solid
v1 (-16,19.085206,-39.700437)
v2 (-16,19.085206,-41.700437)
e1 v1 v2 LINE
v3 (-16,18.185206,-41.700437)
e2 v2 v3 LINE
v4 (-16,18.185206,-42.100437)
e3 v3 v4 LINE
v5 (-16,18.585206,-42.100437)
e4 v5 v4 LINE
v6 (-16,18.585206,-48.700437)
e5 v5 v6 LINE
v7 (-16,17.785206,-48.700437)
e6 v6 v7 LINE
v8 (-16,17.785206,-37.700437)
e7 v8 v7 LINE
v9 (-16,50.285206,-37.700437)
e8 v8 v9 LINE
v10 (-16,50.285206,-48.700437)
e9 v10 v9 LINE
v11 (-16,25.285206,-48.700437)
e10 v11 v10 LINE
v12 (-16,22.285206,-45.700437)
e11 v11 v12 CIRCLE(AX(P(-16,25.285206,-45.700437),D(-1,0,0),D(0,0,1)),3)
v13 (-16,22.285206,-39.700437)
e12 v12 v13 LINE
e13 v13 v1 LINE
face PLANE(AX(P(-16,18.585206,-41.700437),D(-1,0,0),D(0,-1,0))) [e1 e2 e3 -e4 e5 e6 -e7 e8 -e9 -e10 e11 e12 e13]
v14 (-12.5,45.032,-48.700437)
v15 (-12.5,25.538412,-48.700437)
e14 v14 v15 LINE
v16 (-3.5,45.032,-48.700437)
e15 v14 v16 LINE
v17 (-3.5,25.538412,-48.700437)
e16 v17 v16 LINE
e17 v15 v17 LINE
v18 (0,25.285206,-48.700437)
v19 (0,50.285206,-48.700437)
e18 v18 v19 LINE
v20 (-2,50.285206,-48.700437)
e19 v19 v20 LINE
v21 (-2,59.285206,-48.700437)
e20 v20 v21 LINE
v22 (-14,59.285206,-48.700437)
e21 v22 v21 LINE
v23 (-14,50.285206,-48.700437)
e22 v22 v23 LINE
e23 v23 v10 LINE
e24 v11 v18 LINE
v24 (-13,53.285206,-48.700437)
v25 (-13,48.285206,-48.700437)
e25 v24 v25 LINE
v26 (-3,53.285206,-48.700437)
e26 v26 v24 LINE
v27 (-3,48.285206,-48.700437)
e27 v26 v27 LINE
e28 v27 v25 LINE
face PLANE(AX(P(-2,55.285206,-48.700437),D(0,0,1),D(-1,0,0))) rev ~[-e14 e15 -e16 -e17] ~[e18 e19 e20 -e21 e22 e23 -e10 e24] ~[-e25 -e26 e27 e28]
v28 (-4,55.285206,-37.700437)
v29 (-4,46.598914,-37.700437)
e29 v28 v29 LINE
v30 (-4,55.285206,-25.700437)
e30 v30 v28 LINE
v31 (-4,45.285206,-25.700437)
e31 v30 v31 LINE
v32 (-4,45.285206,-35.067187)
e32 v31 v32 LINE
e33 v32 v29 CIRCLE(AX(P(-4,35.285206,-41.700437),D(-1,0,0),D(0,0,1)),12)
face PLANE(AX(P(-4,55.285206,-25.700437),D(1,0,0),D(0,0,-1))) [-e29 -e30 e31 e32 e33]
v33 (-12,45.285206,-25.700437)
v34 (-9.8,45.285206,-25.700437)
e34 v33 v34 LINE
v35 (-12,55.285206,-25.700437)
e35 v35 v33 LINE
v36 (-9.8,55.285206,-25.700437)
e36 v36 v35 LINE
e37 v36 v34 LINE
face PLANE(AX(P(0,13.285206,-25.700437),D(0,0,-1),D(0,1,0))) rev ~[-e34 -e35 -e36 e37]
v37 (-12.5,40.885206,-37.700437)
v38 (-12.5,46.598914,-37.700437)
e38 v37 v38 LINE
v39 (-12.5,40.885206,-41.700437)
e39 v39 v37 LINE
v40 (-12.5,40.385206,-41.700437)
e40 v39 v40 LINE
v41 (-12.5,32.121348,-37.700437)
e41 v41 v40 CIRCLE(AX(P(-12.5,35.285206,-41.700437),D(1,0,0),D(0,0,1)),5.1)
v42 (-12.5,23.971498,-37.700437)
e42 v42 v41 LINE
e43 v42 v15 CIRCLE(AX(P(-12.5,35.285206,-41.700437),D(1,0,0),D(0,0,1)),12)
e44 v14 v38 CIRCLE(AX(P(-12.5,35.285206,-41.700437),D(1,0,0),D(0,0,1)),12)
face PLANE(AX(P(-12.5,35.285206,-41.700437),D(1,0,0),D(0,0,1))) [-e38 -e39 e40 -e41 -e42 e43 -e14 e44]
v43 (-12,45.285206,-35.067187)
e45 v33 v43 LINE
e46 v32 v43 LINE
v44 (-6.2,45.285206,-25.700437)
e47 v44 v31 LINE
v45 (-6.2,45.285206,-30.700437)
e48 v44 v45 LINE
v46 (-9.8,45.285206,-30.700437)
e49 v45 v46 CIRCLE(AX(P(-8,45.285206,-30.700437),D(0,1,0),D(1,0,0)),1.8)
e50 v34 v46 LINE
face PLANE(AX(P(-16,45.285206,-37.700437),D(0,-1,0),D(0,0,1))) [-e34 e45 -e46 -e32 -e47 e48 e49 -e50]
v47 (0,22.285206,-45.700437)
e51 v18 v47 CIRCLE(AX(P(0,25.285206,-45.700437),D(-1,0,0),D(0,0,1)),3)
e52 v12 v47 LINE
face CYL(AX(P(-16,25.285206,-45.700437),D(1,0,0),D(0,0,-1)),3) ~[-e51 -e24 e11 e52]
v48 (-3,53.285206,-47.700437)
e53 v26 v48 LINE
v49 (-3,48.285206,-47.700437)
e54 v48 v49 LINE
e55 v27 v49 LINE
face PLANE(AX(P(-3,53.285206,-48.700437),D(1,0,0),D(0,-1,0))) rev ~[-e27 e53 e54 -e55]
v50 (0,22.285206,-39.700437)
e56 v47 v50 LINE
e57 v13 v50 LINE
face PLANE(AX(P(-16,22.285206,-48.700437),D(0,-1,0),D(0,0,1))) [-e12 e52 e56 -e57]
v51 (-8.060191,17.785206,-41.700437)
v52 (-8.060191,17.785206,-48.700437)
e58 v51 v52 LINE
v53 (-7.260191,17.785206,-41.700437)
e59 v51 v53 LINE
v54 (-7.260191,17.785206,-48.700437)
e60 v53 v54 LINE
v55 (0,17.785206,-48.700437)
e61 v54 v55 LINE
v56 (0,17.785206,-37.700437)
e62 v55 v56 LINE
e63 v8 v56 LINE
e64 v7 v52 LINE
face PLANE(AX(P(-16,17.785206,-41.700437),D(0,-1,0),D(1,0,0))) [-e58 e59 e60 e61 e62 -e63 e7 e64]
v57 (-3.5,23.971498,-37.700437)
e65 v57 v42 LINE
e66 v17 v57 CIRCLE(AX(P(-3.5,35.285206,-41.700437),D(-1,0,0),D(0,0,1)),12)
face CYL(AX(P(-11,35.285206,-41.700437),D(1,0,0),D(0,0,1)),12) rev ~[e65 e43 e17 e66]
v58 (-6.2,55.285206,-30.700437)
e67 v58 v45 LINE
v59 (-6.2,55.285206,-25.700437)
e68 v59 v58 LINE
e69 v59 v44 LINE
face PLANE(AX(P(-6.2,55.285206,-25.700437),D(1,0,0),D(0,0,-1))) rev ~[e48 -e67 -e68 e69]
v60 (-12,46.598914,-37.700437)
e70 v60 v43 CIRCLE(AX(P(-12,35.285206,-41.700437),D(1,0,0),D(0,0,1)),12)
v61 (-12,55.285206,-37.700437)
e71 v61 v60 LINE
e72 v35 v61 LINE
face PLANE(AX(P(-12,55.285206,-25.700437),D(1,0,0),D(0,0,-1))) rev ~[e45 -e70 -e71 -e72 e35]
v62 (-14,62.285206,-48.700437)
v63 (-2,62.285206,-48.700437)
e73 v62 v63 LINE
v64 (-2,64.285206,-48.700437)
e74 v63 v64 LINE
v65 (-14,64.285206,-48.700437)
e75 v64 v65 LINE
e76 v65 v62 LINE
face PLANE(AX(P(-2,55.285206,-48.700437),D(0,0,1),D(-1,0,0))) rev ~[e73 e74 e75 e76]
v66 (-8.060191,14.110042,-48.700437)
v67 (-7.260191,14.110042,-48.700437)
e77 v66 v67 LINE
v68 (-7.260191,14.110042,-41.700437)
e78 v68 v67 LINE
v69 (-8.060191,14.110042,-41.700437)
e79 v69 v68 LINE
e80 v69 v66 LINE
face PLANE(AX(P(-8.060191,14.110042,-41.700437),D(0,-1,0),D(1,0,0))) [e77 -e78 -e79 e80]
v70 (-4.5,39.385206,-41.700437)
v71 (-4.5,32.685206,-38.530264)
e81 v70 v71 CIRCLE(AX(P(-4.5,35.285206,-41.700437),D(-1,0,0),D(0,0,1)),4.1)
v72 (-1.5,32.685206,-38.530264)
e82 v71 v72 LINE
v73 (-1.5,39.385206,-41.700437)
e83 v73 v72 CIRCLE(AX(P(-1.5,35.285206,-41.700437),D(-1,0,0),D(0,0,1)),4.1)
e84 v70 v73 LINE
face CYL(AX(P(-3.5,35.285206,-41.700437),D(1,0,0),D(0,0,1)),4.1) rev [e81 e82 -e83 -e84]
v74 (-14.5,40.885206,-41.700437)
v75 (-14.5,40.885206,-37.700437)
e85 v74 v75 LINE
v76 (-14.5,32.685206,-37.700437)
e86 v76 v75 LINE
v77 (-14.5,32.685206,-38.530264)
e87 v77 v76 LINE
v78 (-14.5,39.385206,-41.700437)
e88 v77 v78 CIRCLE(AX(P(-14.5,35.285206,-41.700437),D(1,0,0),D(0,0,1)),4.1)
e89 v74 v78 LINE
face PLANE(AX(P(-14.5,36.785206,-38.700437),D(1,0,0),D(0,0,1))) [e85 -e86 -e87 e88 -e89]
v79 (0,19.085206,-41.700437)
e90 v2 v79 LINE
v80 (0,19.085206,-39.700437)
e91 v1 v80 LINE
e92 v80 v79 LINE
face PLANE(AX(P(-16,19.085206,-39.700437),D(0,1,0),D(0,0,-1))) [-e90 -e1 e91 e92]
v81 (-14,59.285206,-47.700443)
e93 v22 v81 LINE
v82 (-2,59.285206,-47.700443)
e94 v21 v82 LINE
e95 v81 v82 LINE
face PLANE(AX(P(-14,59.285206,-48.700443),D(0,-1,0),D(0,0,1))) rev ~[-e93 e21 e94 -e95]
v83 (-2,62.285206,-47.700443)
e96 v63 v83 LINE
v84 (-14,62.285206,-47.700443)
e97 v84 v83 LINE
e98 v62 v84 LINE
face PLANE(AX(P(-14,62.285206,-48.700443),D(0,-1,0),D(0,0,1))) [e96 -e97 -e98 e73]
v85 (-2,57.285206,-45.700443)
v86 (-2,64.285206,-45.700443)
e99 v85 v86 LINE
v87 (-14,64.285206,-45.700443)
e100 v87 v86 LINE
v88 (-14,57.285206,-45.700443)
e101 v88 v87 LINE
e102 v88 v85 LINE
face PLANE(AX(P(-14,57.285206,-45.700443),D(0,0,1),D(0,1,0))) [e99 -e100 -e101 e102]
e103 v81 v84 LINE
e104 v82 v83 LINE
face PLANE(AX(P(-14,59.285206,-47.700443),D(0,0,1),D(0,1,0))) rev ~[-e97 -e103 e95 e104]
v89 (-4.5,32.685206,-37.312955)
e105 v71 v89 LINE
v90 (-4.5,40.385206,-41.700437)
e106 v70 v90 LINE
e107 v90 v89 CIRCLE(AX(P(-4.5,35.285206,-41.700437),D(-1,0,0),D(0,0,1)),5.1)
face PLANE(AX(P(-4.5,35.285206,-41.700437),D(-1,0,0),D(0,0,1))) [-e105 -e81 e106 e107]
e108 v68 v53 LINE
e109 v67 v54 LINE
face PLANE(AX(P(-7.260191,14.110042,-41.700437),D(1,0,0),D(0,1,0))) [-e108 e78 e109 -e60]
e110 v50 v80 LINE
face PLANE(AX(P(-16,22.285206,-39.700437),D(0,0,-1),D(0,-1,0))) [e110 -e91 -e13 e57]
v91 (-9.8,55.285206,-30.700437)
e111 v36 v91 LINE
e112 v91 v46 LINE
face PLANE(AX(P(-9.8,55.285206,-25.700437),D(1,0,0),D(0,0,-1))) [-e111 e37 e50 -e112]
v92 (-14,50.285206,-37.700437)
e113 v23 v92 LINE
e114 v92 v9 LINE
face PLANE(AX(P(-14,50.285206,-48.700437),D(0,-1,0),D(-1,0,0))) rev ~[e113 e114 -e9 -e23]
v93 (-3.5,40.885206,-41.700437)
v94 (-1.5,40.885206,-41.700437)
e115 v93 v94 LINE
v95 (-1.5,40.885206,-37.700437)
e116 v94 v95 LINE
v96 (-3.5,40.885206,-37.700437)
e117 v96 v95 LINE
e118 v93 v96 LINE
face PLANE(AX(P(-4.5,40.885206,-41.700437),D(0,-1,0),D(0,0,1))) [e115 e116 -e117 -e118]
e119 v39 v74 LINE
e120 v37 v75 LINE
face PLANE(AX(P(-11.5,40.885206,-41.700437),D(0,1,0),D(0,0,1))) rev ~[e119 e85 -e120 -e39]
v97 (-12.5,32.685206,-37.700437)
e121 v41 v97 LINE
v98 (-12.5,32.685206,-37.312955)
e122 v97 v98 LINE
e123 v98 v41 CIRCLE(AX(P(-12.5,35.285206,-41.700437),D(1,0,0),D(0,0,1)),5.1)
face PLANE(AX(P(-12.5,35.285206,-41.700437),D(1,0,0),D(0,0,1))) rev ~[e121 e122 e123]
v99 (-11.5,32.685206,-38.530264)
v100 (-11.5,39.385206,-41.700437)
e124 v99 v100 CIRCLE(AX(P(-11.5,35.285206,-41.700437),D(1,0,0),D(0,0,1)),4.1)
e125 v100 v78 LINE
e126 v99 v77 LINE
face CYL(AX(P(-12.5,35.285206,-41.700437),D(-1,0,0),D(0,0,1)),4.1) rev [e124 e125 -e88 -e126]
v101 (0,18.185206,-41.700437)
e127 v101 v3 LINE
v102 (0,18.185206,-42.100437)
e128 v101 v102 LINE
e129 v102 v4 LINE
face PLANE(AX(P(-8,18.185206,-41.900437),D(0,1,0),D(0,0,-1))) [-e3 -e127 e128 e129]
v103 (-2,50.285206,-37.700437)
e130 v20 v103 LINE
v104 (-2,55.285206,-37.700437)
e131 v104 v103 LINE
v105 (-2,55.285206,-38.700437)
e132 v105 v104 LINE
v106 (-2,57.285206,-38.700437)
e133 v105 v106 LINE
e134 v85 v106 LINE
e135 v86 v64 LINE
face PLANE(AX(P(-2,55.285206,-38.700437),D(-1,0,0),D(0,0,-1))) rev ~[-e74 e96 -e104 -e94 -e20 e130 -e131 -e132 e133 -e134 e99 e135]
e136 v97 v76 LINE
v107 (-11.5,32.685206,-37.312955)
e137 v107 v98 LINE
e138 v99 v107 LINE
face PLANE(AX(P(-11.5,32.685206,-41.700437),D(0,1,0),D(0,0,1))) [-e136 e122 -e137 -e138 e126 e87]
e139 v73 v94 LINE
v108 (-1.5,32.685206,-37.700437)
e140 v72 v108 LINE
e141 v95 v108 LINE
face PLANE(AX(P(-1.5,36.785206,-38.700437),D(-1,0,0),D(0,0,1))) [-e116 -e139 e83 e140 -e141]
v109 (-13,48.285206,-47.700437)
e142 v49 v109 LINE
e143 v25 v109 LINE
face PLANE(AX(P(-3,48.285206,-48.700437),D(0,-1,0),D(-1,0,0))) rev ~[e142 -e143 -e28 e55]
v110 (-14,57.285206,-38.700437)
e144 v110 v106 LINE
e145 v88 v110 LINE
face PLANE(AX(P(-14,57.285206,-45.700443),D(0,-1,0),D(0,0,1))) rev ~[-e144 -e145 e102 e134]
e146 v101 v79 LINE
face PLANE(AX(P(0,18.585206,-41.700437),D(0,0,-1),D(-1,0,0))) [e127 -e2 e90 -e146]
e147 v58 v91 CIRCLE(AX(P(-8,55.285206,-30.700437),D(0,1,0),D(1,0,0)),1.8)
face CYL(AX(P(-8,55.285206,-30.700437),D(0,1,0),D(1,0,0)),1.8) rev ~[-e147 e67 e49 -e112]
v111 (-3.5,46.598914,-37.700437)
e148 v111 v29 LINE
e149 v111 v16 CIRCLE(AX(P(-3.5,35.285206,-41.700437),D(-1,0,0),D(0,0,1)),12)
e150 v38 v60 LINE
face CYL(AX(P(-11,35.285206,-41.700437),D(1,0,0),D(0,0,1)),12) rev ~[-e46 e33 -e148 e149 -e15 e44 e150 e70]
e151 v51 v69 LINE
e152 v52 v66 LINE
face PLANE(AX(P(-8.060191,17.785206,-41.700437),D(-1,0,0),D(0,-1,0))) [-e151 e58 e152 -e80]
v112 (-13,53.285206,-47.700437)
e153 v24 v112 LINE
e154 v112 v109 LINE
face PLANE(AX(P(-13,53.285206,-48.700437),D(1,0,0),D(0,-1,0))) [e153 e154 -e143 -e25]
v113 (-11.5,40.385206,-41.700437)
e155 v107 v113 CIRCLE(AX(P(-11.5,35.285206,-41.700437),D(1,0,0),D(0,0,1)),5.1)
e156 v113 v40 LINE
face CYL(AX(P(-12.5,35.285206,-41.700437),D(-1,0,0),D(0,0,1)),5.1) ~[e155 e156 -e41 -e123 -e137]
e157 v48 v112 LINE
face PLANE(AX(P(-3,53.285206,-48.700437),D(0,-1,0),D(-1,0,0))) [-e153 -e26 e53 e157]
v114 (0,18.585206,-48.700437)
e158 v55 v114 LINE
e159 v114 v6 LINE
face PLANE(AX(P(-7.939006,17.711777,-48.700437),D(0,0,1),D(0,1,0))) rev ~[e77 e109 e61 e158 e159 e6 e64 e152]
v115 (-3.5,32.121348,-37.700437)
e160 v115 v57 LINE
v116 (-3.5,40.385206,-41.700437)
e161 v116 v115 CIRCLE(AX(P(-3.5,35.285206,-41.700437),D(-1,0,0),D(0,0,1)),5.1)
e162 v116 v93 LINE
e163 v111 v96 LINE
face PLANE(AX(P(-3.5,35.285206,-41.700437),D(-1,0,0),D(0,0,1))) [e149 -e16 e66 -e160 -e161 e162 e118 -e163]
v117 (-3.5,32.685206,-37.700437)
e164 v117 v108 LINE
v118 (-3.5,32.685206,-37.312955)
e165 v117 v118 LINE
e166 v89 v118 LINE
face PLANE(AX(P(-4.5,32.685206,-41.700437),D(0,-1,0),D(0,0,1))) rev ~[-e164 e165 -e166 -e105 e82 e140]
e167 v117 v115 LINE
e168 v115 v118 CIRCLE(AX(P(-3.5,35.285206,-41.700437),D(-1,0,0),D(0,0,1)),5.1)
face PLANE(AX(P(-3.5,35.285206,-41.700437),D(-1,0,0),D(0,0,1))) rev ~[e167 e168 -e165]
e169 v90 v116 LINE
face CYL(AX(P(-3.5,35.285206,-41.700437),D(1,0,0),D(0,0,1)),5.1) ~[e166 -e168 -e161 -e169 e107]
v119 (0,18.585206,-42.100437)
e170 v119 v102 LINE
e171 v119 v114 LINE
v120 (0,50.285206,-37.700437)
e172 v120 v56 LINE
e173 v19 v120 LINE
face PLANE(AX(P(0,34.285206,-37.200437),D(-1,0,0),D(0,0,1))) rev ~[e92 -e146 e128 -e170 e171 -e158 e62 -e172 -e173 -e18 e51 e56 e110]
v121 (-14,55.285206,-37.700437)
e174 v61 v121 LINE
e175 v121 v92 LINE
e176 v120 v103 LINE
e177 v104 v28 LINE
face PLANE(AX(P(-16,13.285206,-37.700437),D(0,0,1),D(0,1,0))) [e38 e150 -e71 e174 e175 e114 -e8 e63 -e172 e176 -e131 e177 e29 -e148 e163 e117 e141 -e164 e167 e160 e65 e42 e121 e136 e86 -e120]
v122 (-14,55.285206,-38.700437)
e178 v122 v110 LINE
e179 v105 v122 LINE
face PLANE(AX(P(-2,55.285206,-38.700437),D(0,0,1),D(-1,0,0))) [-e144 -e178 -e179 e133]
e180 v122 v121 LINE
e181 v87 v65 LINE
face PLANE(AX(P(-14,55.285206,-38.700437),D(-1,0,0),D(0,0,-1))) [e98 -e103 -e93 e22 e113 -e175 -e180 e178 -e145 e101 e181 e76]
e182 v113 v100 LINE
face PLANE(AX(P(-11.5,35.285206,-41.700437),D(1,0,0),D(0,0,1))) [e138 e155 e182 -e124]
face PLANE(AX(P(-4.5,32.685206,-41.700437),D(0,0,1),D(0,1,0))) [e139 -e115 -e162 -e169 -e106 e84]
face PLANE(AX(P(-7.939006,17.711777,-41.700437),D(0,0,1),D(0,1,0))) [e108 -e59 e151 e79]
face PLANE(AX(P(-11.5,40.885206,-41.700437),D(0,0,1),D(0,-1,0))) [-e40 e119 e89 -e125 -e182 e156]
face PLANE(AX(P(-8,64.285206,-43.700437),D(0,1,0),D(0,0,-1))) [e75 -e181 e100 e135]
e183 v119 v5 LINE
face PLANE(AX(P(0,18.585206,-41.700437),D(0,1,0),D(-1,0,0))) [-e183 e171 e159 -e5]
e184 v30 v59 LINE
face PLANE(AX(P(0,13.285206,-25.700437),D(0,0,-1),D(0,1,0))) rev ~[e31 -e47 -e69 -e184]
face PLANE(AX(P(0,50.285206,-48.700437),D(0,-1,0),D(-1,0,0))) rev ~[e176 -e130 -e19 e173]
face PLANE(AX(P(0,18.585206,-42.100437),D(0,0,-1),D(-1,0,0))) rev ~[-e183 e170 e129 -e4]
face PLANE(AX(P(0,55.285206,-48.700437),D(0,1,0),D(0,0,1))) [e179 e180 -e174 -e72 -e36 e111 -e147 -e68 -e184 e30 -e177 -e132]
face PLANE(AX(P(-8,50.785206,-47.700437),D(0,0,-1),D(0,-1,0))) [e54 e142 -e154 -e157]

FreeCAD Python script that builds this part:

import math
import FreeCAD as App
import Part
import Sketcher
from FreeCAD import Vector


def edges_at(feature, points):
    """Names of the edges that pass closest to the given points."""
    edges = feature.Shape.Edges
    near = lambda p: min(range(len(edges)), key=lambda i: edges[i].distToShape(Part.Vertex(*p))[0])
    return sorted({f"Edge{near(p) + 1}" for p in points})


def add_polygon(sketch, points):
    """Adds a closed chain of lines whose ends are joined by coincident constraints."""
    first, n = sketch.GeometryCount, len(points)
    for a, b in zip(points, points[1:] + points[:1]):
        sketch.addGeometry(Part.LineSegment(App.Vector(*a, 0), App.Vector(*b, 0)), False)
    for i in range(n):
        sketch.addConstraint(Sketcher.Constraint("Coincident", first + i, 2, first + (i + 1) % n, 1))

doc = App.newDocument("Part")
body = doc.addObject("PartDesign::Body", "Body")

# Sketch on YZ plane
sketch1 = body.newObject("Sketcher::SketchObject", "Sketch")
sketch1.AttachmentSupport = (doc.getObject("YZ_Plane"), [""])
sketch1.MapMode = "FlatFace"
add_polygon(sketch1, [(55.285206, -48.700437), (13.285206, -48.700437), (13.285206, -25.700437), (55.285206, -25.700437)])  # lines 0-3
sketch1.addConstraint(Sketcher.Constraint("Horizontal", 0))
sketch1.addConstraint(Sketcher.Constraint("Vertical", 1))
sketch1.addConstraint(Sketcher.Constraint("Horizontal", 2))
sketch1.addConstraint(Sketcher.Constraint("Vertical", 3))
sketch1.addConstraint(Sketcher.Constraint("DistanceX", 0, 2, 0, 1, 42.0))
sketch1.addConstraint(Sketcher.Constraint("DistanceY", 1, 1, 1, 2, 23.0))
sketch1.addConstraint(Sketcher.Constraint("DistanceX", -1, 1, 0, 2, 13.285206))
sketch1.addConstraint(Sketcher.Constraint("DistanceY", 0, 2, -1, 1, 48.700437))
pad1 = body.newObject("PartDesign::Pad", "Pad")
pad1.Profile = sketch1
pad1.Length = 16
pad1.Reversed = True

# Sketch on YZ plane
sketch2 = body.newObject("Sketcher::SketchObject", "Sketch001")
sketch2.AttachmentSupport = (doc.getObject("YZ_Plane"), [""])
sketch2.MapMode = "FlatFace"
sketch2.AttachmentOffset = App.Placement(Vector(0, 0, -16), App.Rotation())
add_polygon(sketch2, [(45.285206, -37.700437), (13.285206, -37.700437), (13.285206, -25.700437), (45.285206, -25.700437)])  # lines 0-3
sketch2.addConstraint(Sketcher.Constraint("Horizontal", 0))
sketch2.addConstraint(Sketcher.Constraint("Vertical", 1))
sketch2.addConstraint(Sketcher.Constraint("Horizontal", 2))
sketch2.addConstraint(Sketcher.Constraint("Vertical", 3))
sketch2.addConstraint(Sketcher.Constraint("DistanceX", 0, 2, 0, 1, 32.0))
sketch2.addConstraint(Sketcher.Constraint("DistanceY", 1, 1, 1, 2, 12.0))
sketch2.addConstraint(Sketcher.Constraint("DistanceX", -1, 1, 0, 2, 13.285206))
sketch2.addConstraint(Sketcher.Constraint("DistanceY", 0, 2, -1, 1, 37.700437))
pocket1 = body.newObject("PartDesign::Pocket", "Pocket")
pocket1.Profile = sketch2
pocket1.Length = 16
pocket1.Reversed = True

# Sketch on XZ plane
sketch3 = body.newObject("Sketcher::SketchObject", "Sketch002")
sketch3.AttachmentSupport = (doc.getObject("XZ_Plane"), [""])
sketch3.MapMode = "FlatFace"
sketch3.AttachmentOffset = App.Placement(Vector(0, 0, -55.285206), App.Rotation())
add_polygon(sketch3, [(-4, -25.700437), (0, -25.700437), (0, -37.700437), (-4, -37.700437)])  # lines 0-3
add_polygon(sketch3, [(-16, -25.700437), (-12, -25.700437), (-12, -37.700437), (-16, -37.700437)])  # lines 4-7
sketch3.addGeometry(Part.ArcOfCircle(Part.Circle(Vector(-8, -30.700437, 0), Vector(0, 0, 1), 1.8), math.radians(180), math.radians(360)), False)  # 8
sketch3.addGeometry(Part.LineSegment(Vector(-9.8, -30.700437, 0), Vector(-9.8, -25.700437, 0)), False)  # 9
sketch3.addGeometry(Part.LineSegment(Vector(-9.8, -25.700437, 0), Vector(-6.2, -25.700437, 0)), False)  # 10
sketch3.addGeometry(Part.LineSegment(Vector(-6.2, -25.700437, 0), Vector(-6.2, -30.700437, 0)), False)  # 11
sketch3.addConstraint(Sketcher.Constraint("Tangent", 8, 1, 9, 1))
sketch3.addConstraint(Sketcher.Constraint("Coincident", 9, 2, 10, 1))
sketch3.addConstraint(Sketcher.Constraint("Coincident", 10, 2, 11, 1))
sketch3.addConstraint(Sketcher.Constraint("Tangent", 11, 2, 8, 2))
sketch3.addConstraint(Sketcher.Constraint("Horizontal", 0))
sketch3.addConstraint(Sketcher.Constraint("Vertical", 1))
sketch3.addConstraint(Sketcher.Constraint("Horizontal", 2))
sketch3.addConstraint(Sketcher.Constraint("Vertical", 3))
sketch3.addConstraint(Sketcher.Constraint("Horizontal", 4))
sketch3.addConstraint(Sketcher.Constraint("Vertical", 5))
sketch3.addConstraint(Sketcher.Constraint("Horizontal", 6))
sketch3.addConstraint(Sketcher.Constraint("Vertical", 7))
sketch3.addConstraint(Sketcher.Constraint("Vertical", 9))
sketch3.addConstraint(Sketcher.Constraint("Horizontal", 10))
sketch3.addConstraint(Sketcher.Constraint("Vertical", 11))
sketch3.addConstraint(Sketcher.Constraint("PointOnObject", 0, 2, -2))
sketch3.addConstraint(Sketcher.Constraint("Horizontal", 3, 2, 4, 2))
sketch3.addConstraint(Sketcher.Constraint("Horizontal", 2, 2, 5, 2))
sketch3.addConstraint(Sketcher.Constraint("Horizontal", 7, 2, 9, 2))
sketch3.addConstraint(Sketcher.Constraint("Equal", 2, 4))
sketch3.addConstraint(Sketcher.Constraint("Radius", 8, 1.8))
sketch3.addConstraint(Sketcher.Constraint("DistanceX", 0, 1, 0, 2, 4.0))
sketch3.addConstraint(Sketcher.Constraint("DistanceY", 1, 2, 1, 1, 12.0))
sketch3.addConstraint(Sketcher.Constraint("DistanceY", 9, 1, 9, 2, 5.0))
sketch3.addConstraint(Sketcher.Constraint("DistanceX", 8, 3, -1, 1, 8.0))
sketch3.addConstraint(Sketcher.Constraint("DistanceX", 4, 2, -1, 1, 12.0))
sketch3.addConstraint(Sketcher.Constraint("DistanceY", 8, 3, -1, 1, 30.700437))
pocket2 = body.newObject("PartDesign::Pocket", "Pocket001")
pocket2.Profile = sketch3
pocket2.Length = 10
pocket2.Reversed = True

# Sketch on XY plane
sketch4 = body.newObject("Sketcher::SketchObject", "Sketch003")
sketch4.AttachmentSupport = (doc.getObject("XY_Plane"), [""])
sketch4.MapMode = "FlatFace"
sketch4.AttachmentOffset = App.Placement(Vector(0, 0, -48.700437), App.Rotation())
add_polygon(sketch4, [(-11, 38.285206), (-5, 38.285206), (-5, 32.285206), (-11, 32.285206)])  # lines 0-3
sketch4.addConstraint(Sketcher.Constraint("Horizontal", 0))
sketch4.addConstraint(Sketcher.Constraint("Vertical", 1))
sketch4.addConstraint(Sketcher.Constraint("Horizontal", 2))
sketch4.addConstraint(Sketcher.Constraint("Vertical", 3))
sketch4.addConstraint(Sketcher.Constraint("Equal", 2, 1))
sketch4.addConstraint(Sketcher.Constraint("DistanceX", 0, 1, 0, 2, 6.0))
sketch4.addConstraint(Sketcher.Constraint("DistanceX", 0, 2, -1, 1, 5.0))
sketch4.addConstraint(Sketcher.Constraint("DistanceY", -1, 1, 0, 2, 38.285206))
pocket3 = body.newObject("PartDesign::Pocket", "Pocket002")
pocket3.Profile = sketch4
pocket3.Length = 11
pocket3.Reversed = True

# Sketch on YZ plane
sketch5 = body.newObject("Sketcher::SketchObject", "Sketch004")
sketch5.AttachmentSupport = (doc.getObject("YZ_Plane"), [""])
sketch5.MapMode = "FlatFace"
sketch5.AttachmentOffset = App.Placement(Vector(0, 0, -5), App.Rotation())
sketch5.addGeometry(Part.Circle(Vector(35.285206, -41.700437, 0), Vector(0, 0, 1), 12), False)
sketch5.addConstraint(Sketcher.Constraint("Diameter", 0, 24.0))
sketch5.addConstraint(Sketcher.Constraint("DistanceX", -1, 1, 0, 3, 35.285206))
sketch5.addConstraint(Sketcher.Constraint("DistanceY", 0, 3, -1, 1, 41.700437))
pocket4 = body.newObject("PartDesign::Pocket", "Pocket003")
pocket4.Profile = sketch5
pocket4.Length = 1.5
pocket4.Reversed = True

# Sketch on YZ plane
sketch6 = body.newObject("Sketcher::SketchObject", "Sketch005")
sketch6.AttachmentSupport = (doc.getObject("YZ_Plane"), [""])
sketch6.MapMode = "FlatFace"
sketch6.AttachmentOffset = App.Placement(Vector(0, 0, -11), App.Rotation())
sketch6.addGeometry(Part.Circle(Vector(35.285206, -41.700437, 0), Vector(0, 0, 1), 12), False)
sketch6.addConstraint(Sketcher.Constraint("Diameter", 0, 24.0))
sketch6.addConstraint(Sketcher.Constraint("DistanceX", -1, 1, 0, 3, 35.285206))
sketch6.addConstraint(Sketcher.Constraint("DistanceY", 0, 3, -1, 1, 41.700437))
pocket5 = body.newObject("PartDesign::Pocket", "Pocket004")
pocket5.Profile = sketch6
pocket5.Length = 1.5

# Sketch on YZ plane
sketch7 = body.newObject("Sketcher::SketchObject", "Sketch006")
sketch7.AttachmentSupport = (doc.getObject("YZ_Plane"), [""])
sketch7.MapMode = "FlatFace"
sketch7.AttachmentOffset = App.Placement(Vector(0, 0, -3.5), App.Rotation())
sketch7.addGeometry(Part.Circle(Vector(35.285206, -41.700437, 0), Vector(0, 0, 1), 4.1), False)
sketch7.addConstraint(Sketcher.Constraint("Diameter", 0, 8.2))
sketch7.addConstraint(Sketcher.Constraint("DistanceX", -1, 1, 0, 3, 35.285206))
sketch7.addConstraint(Sketcher.Constraint("DistanceY", 0, 3, -1, 1, 41.700437))
pocket6 = body.newObject("PartDesign::Pocket", "Pocket005")
pocket6.Profile = sketch7
pocket6.Length = 2
pocket6.Reversed = True

# Sketch on YZ plane
sketch8 = body.newObject("Sketcher::SketchObject", "Sketch007")
sketch8.AttachmentSupport = (doc.getObject("YZ_Plane"), [""])
sketch8.MapMode = "FlatFace"
sketch8.AttachmentOffset = App.Placement(Vector(0, 0, -12.5), App.Rotation())
sketch8.addGeometry(Part.Circle(Vector(35.285206, -41.700437, 0), Vector(0, 0, 1), 4.1), False)
sketch8.addConstraint(Sketcher.Constraint("Diameter", 0, 8.2))
sketch8.addConstraint(Sketcher.Constraint("DistanceX", -1, 1, 0, 3, 35.285206))
sketch8.addConstraint(Sketcher.Constraint("DistanceY", 0, 3, -1, 1, 41.700437))
pocket7 = body.newObject("PartDesign::Pocket", "Pocket006")
pocket7.Profile = sketch8
pocket7.Length = 2

# Sketch on YZ plane
sketch9 = body.newObject("Sketcher::SketchObject", "Sketch008")
sketch9.AttachmentSupport = (doc.getObject("YZ_Plane"), [""])
sketch9.MapMode = "FlatFace"
sketch9.AttachmentOffset = App.Placement(Vector(0, 0, -3.5), App.Rotation())
sketch9.addGeometry(Part.Circle(Vector(35.285206, -41.700437, 0), Vector(0, 0, 1), 5.1), False)
sketch9.addGeometry(Part.Circle(Vector(35.285206, -41.700437, 0), Vector(0, 0, 1), 4.1), False)
sketch9.addConstraint(Sketcher.Constraint("Coincident", 1, 3, 0, 3))
sketch9.addConstraint(Sketcher.Constraint("Diameter", 0, 10.2))
sketch9.addConstraint(Sketcher.Constraint("Diameter", 1, 8.2))
sketch9.addConstraint(Sketcher.Constraint("DistanceX", -1, 1, 0, 3, 35.285206))
sketch9.addConstraint(Sketcher.Constraint("DistanceY", 0, 3, -1, 1, 41.700437))
pad2 = body.newObject("PartDesign::Pad", "Pad001")
pad2.Profile = sketch9
pad2.Length = 1
pad2.Reversed = True

# Sketch on YZ plane
sketch10 = body.newObject("Sketcher::SketchObject", "Sketch009")
sketch10.AttachmentSupport = (doc.getObject("YZ_Plane"), [""])
sketch10.MapMode = "FlatFace"
sketch10.AttachmentOffset = App.Placement(Vector(0, 0, -12.5), App.Rotation())
sketch10.addGeometry(Part.Circle(Vector(35.285206, -41.700437, 0), Vector(0, 0, 1), 5.1), False)
sketch10.addGeometry(Part.Circle(Vector(35.285206, -41.700437, 0), Vector(0, 0, 1), 4.1), False)
sketch10.addConstraint(Sketcher.Constraint("Coincident", 1, 3, 0, 3))
sketch10.addConstraint(Sketcher.Constraint("Diameter", 0, 10.2))
sketch10.addConstraint(Sketcher.Constraint("Diameter", 1, 8.2))
sketch10.addConstraint(Sketcher.Constraint("DistanceX", -1, 1, 0, 3, 35.285206))
sketch10.addConstraint(Sketcher.Constraint("DistanceY", 0, 3, -1, 1, 41.700437))
pad3 = body.newObject("PartDesign::Pad", "Pad002")
pad3.Profile = sketch10
pad3.Length = 1

# Sketch on YZ plane
sketch11 = body.newObject("Sketcher::SketchObject", "Sketch010")
sketch11.AttachmentSupport = (doc.getObject("YZ_Plane"), [""])
sketch11.MapMode = "FlatFace"
sketch11.AttachmentOffset = App.Placement(Vector(0, 0, -4.5), App.Rotation())
add_polygon(sketch11, [(40.885206, -41.700437), (32.685206, -41.700437), (32.685206, -35.700437), (40.885206, -35.700437)])  # lines 0-3
sketch11.addConstraint(Sketcher.Constraint("Horizontal", 0))
sketch11.addConstraint(Sketcher.Constraint("Vertical", 1))
sketch11.addConstraint(Sketcher.Constraint("Horizontal", 2))
sketch11.addConstraint(Sketcher.Constraint("Vertical", 3))
sketch11.addConstraint(Sketcher.Constraint("DistanceY", 1, 1, 1, 2, 6.0))
sketch11.addConstraint(Sketcher.Constraint("DistanceX", 0, 2, 0, 1, 8.2))
sketch11.addConstraint(Sketcher.Constraint("DistanceX", -1, 1, 0, 2, 32.685206))
sketch11.addConstraint(Sketcher.Constraint("DistanceY", 0, 2, -1, 1, 41.700437))
pocket8 = body.newObject("PartDesign::Pocket", "Pocket007")
pocket8.Profile = sketch11
pocket8.Length = 3
pocket8.Reversed = True

# Sketch on YZ plane
sketch12 = body.newObject("Sketcher::SketchObject", "Sketch011")
sketch12.AttachmentSupport = (doc.getObject("YZ_Plane"), [""])
sketch12.MapMode = "FlatFace"
sketch12.AttachmentOffset = App.Placement(Vector(0, 0, -11.5), App.Rotation())
add_polygon(sketch12, [(32.685206, -41.700437), (40.885206, -41.700437), (40.885206, -35.700437), (32.685206, -35.700437)])  # lines 0-3
sketch12.addConstraint(Sketcher.Constraint("Horizontal", 0))
sketch12.addConstraint(Sketcher.Constraint("Vertical", 1))
sketch12.addConstraint(Sketcher.Constraint("Horizontal", 2))
sketch12.addConstraint(Sketcher.Constraint("Vertical", 3))
sketch12.addConstraint(Sketcher.Constraint("DistanceY", 1, 1, 1, 2, 6.0))
sketch12.addConstraint(Sketcher.Constraint("DistanceX", 0, 1, 0, 2, 8.2))
sketch12.addConstraint(Sketcher.Constraint("DistanceX", -1, 1, 0, 2, 40.885206))
sketch12.addConstraint(Sketcher.Constraint("DistanceY", 0, 2, -1, 1, 41.700437))
pocket9 = body.newObject("PartDesign::Pocket", "Pocket008")
pocket9.Profile = sketch12
pocket9.Length = 3

# Sketch on YZ plane
sketch13 = body.newObject("Sketcher::SketchObject", "Sketch012")
sketch13.AttachmentSupport = (doc.getObject("YZ_Plane"), [""])
sketch13.MapMode = "FlatFace"
sketch13.AttachmentOffset = App.Placement(Vector(0, 0, -11), App.Rotation())
sketch13.addGeometry(Part.Circle(Vector(35.285206, -41.700437, 0), Vector(0, 0, 1), 12), False)
sketch13.addConstraint(Sketcher.Constraint("Diameter", 0, 24.0))
sketch13.addConstraint(Sketcher.Constraint("DistanceX", -1, 1, 0, 3, 35.285206))
sketch13.addConstraint(Sketcher.Constraint("DistanceY", 0, 3, -1, 1, 41.700437))
pocket10 = body.newObject("PartDesign::Pocket", "Pocket009")
pocket10.Profile = sketch13
pocket10.Length = 6
pocket10.Reversed = True

# Sketch on XY plane
sketch14 = body.newObject("Sketcher::SketchObject", "Sketch013")
sketch14.AttachmentSupport = (doc.getObject("XY_Plane"), [""])
sketch14.MapMode = "FlatFace"
sketch14.AttachmentOffset = App.Placement(Vector(0, 0, -48.700437), App.Rotation())
add_polygon(sketch14, [(-13, 53.285206), (-3, 53.285206), (-3, 48.285206), (-13, 48.285206)])  # lines 0-3
sketch14.addConstraint(Sketcher.Constraint("Horizontal", 0))
sketch14.addConstraint(Sketcher.Constraint("Vertical", 1))
sketch14.addConstraint(Sketcher.Constraint("Horizontal", 2))
sketch14.addConstraint(Sketcher.Constraint("Vertical", 3))
sketch14.addConstraint(Sketcher.Constraint("DistanceX", 0, 1, 0, 2, 10.0))
sketch14.addConstraint(Sketcher.Constraint("DistanceY", 1, 2, 1, 1, 5.0))
sketch14.addConstraint(Sketcher.Constraint("DistanceX", 0, 2, -1, 1, 3.0))
sketch14.addConstraint(Sketcher.Constraint("DistanceY", -1, 1, 0, 2, 53.285206))
pocket11 = body.newObject("PartDesign::Pocket", "Pocket010")
pocket11.Profile = sketch14
pocket11.Length = 1
pocket11.Reversed = True

# Sketch on YZ plane
sketch15 = body.newObject("Sketcher::SketchObject", "Sketch014")
sketch15.AttachmentSupport = (doc.getObject("YZ_Plane"), [""])
sketch15.MapMode = "FlatFace"
sketch15.AttachmentOffset = App.Placement(Vector(0, 0, -16), App.Rotation())
add_polygon(sketch15, [(13.285206, -48.700437), (13.285206, -37.700437), (17.785206, -37.700437), (17.785206, -41.700437), (19.085206, -41.700437), (19.085206, -39.700437), (22.285206, -39.700437), (22.285206, -48.700437)])  # lines 0-7
sketch15.addConstraint(Sketcher.Constraint("Vertical", 0))
sketch15.addConstraint(Sketcher.Constraint("Horizontal", 1))
sketch15.addConstraint(Sketcher.Constraint("Vertical", 2))
sketch15.addConstraint(Sketcher.Constraint("Horizontal", 3))
sketch15.addConstraint(Sketcher.Constraint("Vertical", 4))
sketch15.addConstraint(Sketcher.Constraint("Horizontal", 5))
sketch15.addConstraint(Sketcher.Constraint("Vertical", 6))
sketch15.addConstraint(Sketcher.Constraint("Horizontal", 7))
sketch15.addConstraint(Sketcher.Constraint("Equal", 7, 6))
sketch15.addConstraint(Sketcher.Constraint("DistanceX", 7, 2, 7, 1, 9.0))
sketch15.addConstraint(Sketcher.Constraint("DistanceY", 0, 1, 0, 2, 11.0))
sketch15.addConstraint(Sketcher.Constraint("DistanceY", 2, 2, 2, 1, 4.0))
sketch15.addConstraint(Sketcher.Constraint("DistanceX", 1, 1, 1, 2, 4.5))
sketch15.addConstraint(Sketcher.Constraint("DistanceX", 3, 1, 3, 2, 1.3))
sketch15.addConstraint(Sketcher.Constraint("DistanceX", -1, 1, 0, 2, 13.285206))
sketch15.addConstraint(Sketcher.Constraint("DistanceY", 0, 2, -1, 1, 37.700437))
pocket12 = body.newObject("PartDesign::Pocket", "Pocket011")
pocket12.Profile = sketch15
pocket12.Length = 16
pocket12.Reversed = True

# Sketch on XY plane
sketch16 = body.newObject("Sketcher::SketchObject", "Sketch015")
sketch16.AttachmentSupport = (doc.getObject("XY_Plane"), [""])
sketch16.MapMode = "FlatFace"
sketch16.AttachmentOffset = App.Placement(Vector(0, 0, -48.700437), App.Rotation())
add_polygon(sketch16, [(-2, 55.285206), (0, 55.285206), (0, 50.285206), (-2, 50.285206)])  # lines 0-3
add_polygon(sketch16, [(-16, 55.285206), (-14, 55.285206), (-14, 50.285206), (-16, 50.285206)])  # lines 4-7
sketch16.addConstraint(Sketcher.Constraint("Horizontal", 0))
sketch16.addConstraint(Sketcher.Constraint("Vertical", 1))
sketch16.addConstraint(Sketcher.Constraint("Horizontal", 2))
sketch16.addConstraint(Sketcher.Constraint("Vertical", 3))
sketch16.addConstraint(Sketcher.Constraint("Horizontal", 4))
sketch16.addConstraint(Sketcher.Constraint("Vertical", 5))
sketch16.addConstraint(Sketcher.Constraint("Horizontal", 6))
sketch16.addConstraint(Sketcher.Constraint("Vertical", 7))
sketch16.addConstraint(Sketcher.Constraint("PointOnObject", 0, 2, -2))
sketch16.addConstraint(Sketcher.Constraint("Horizontal", 3, 2, 4, 2))
sketch16.addConstraint(Sketcher.Constraint("Horizontal", 2, 2, 5, 2))
sketch16.addConstraint(Sketcher.Constraint("Equal", 2, 4))
sketch16.addConstraint(Sketcher.Constraint("DistanceX", 0, 1, 0, 2, 2.0))
sketch16.addConstraint(Sketcher.Constraint("DistanceY", 1, 2, 1, 1, 5.0))
sketch16.addConstraint(Sketcher.Constraint("DistanceX", 4, 2, -1, 1, 14.0))
sketch16.addConstraint(Sketcher.Constraint("DistanceY", -1, 1, 0, 2, 55.285206))
pocket13 = body.newObject("PartDesign::Pocket", "Pocket012")
pocket13.Profile = sketch16
pocket13.Length = 11
pocket13.Reversed = True
doc.recompute()

fillet = body.newObject("PartDesign::Fillet", "Fillet")
fillet.Base = (pocket13, edges_at(pocket13, [(-8, 22.285, -48.7)]))
fillet.Radius = 3

# Sketch on XY plane
sketch17 = body.newObject("Sketcher::SketchObject", "Sketch016")
sketch17.AttachmentSupport = (doc.getObject("XY_Plane"), [""])
sketch17.MapMode = "FlatFace"
sketch17.AttachmentOffset = App.Placement(Vector(0, 0, -41.700437), App.Rotation())
add_polygon(sketch17, [(-8.060191, 17.785206), (-16, 17.785206), (-16, 18.585206), (0, 18.585206), (0, 17.785206), (-7.260191, 17.785206), (-7.260191, 14.110042), (-8.060191, 14.110042)])  # lines 0-7
sketch17.addConstraint(Sketcher.Constraint("Horizontal", 0))
sketch17.addConstraint(Sketcher.Constraint("Vertical", 1))
sketch17.addConstraint(Sketcher.Constraint("Horizontal", 2))
sketch17.addConstraint(Sketcher.Constraint("Vertical", 3))
sketch17.addConstraint(Sketcher.Constraint("Horizontal", 4))
sketch17.addConstraint(Sketcher.Constraint("Vertical", 5))
sketch17.addConstraint(Sketcher.Constraint("Horizontal", 6))
sketch17.addConstraint(Sketcher.Constraint("Vertical", 7))
sketch17.addConstraint(Sketcher.Constraint("PointOnObject", 2, 2, -2))
sketch17.addConstraint(Sketcher.Constraint("Horizontal", 0, 2, 3, 2))
sketch17.addConstraint(Sketcher.Constraint("Equal", 6, 1))
sketch17.addConstraint(Sketcher.Constraint("DistanceX", 2, 1, 2, 2, 16.0))
sketch17.addConstraint(Sketcher.Constraint("DistanceX", 6, 2, 6, 1, 0.8))
sketch17.addConstraint(Sketcher.Constraint("DistanceX", 0, 2, 0, 1, 7.939809))
sketch17.addConstraint(Sketcher.Constraint("DistanceY", 5, 2, 5, 1, 3.675164))
sketch17.addConstraint(Sketcher.Constraint("DistanceY", -1, 1, 0, 2, 17.785206))
pad4 = body.newObject("PartDesign::Pad", "Pad003")
pad4.Profile = sketch17
pad4.Length = 7
pad4.Reversed = True

# Sketch on XZ plane
sketch18 = body.newObject("Sketcher::SketchObject", "Sketch017")
sketch18.AttachmentSupport = (doc.getObject("XZ_Plane"), [""])
sketch18.MapMode = "FlatFace"
sketch18.AttachmentOffset = App.Placement(Vector(0, 0, -18.585206), App.Rotation())
add_polygon(sketch18, [(-16, -41.700437), (0, -41.700437), (0, -42.100437), (-16, -42.100437)])  # lines 0-3
sketch18.addConstraint(Sketcher.Constraint("Horizontal", 0))
sketch18.addConstraint(Sketcher.Constraint("Vertical", 1))
sketch18.addConstraint(Sketcher.Constraint("Horizontal", 2))
sketch18.addConstraint(Sketcher.Constraint("Vertical", 3))
sketch18.addConstraint(Sketcher.Constraint("PointOnObject", 0, 2, -2))
sketch18.addConstraint(Sketcher.Constraint("DistanceX", 0, 1, 0, 2, 16.0))
sketch18.addConstraint(Sketcher.Constraint("DistanceY", 1, 2, 1, 1, 0.4))
sketch18.addConstraint(Sketcher.Constraint("DistanceY", 0, 2, -1, 1, 41.700437))
pocket14 = body.newObject("PartDesign::Pocket", "Pocket013")
pocket14.Profile = sketch18
pocket14.Length = 0.4
pocket14.Reversed = True

# Sketch on XZ plane
sketch19 = body.newObject("Sketcher::SketchObject", "Sketch018")
sketch19.AttachmentSupport = (doc.getObject("XZ_Plane"), [""])
sketch19.MapMode = "FlatFace"
sketch19.AttachmentOffset = App.Placement(Vector(0, 0, -55.285206), App.Rotation())
add_polygon(sketch19, [(-14, -38.700437), (-2, -38.700437), (-2, -48.700437), (-14, -48.700437)])  # lines 0-3
sketch19.addConstraint(Sketcher.Constraint("Horizontal", 0))
sketch19.addConstraint(Sketcher.Constraint("Vertical", 1))
sketch19.addConstraint(Sketcher.Constraint("Horizontal", 2))
sketch19.addConstraint(Sketcher.Constraint("Vertical", 3))
sketch19.addConstraint(Sketcher.Constraint("DistanceX", 0, 1, 0, 2, 12.0))
sketch19.addConstraint(Sketcher.Constraint("DistanceY", 1, 2, 1, 1, 10.0))
sketch19.addConstraint(Sketcher.Constraint("DistanceX", 0, 2, -1, 1, 2.0))
sketch19.addConstraint(Sketcher.Constraint("DistanceY", 0, 2, -1, 1, 38.700437))
pad5 = body.newObject("PartDesign::Pad", "Pad004")
pad5.Profile = sketch19
pad5.Length = 9
pad5.Reversed = True

# Sketch on YZ plane
sketch20 = body.newObject("Sketcher::SketchObject", "Sketch019")
sketch20.AttachmentSupport = (doc.getObject("YZ_Plane"), [""])
sketch20.MapMode = "FlatFace"
sketch20.AttachmentOffset = App.Placement(Vector(0, 0, -14), App.Rotation())
add_polygon(sketch20, [(62.285206, -48.700443), (59.285206, -48.700443), (59.285206, -47.700443), (62.285206, -47.700443)])  # lines 0-3
add_polygon(sketch20, [(64.285206, -45.700443), (57.285206, -45.700443), (57.285206, -38.700437), (64.285206, -38.700437)])  # lines 4-7
sketch20.addConstraint(Sketcher.Constraint("Horizontal", 0))
sketch20.addConstraint(Sketcher.Constraint("Vertical", 1))
sketch20.addConstraint(Sketcher.Constraint("Horizontal", 2))
sketch20.addConstraint(Sketcher.Constraint("Vertical", 3))
sketch20.addConstraint(Sketcher.Constraint("Horizontal", 4))
sketch20.addConstraint(Sketcher.Constraint("Vertical", 5))
sketch20.addConstraint(Sketcher.Constraint("Horizontal", 6))
sketch20.addConstraint(Sketcher.Constraint("Vertical", 7))
sketch20.addConstraint(Sketcher.Constraint("DistanceX", 0, 2, 0, 1, 3.0))
sketch20.addConstraint(Sketcher.Constraint("DistanceX", 4, 2, 4, 1, 7.0))
sketch20.addConstraint(Sketcher.Constraint("DistanceY", 1, 1, 1, 2, 1.0))
sketch20.addConstraint(Sketcher.Constraint("DistanceX", 4, 2, 1, 2, 2.0))
sketch20.addConstraint(Sketcher.Constraint("DistanceY", 1, 2, 4, 2, 2.0))
sketch20.addConstraint(Sketcher.Constraint("DistanceY", 5, 1, 5, 2, 7.000006))
sketch20.addConstraint(Sketcher.Constraint("DistanceX", -1, 1, 0, 2, 59.285206))
sketch20.addConstraint(Sketcher.Constraint("DistanceY", 0, 2, -1, 1, 48.700443))
pocket15 = body.newObject("PartDesign::Pocket", "Pocket014")
pocket15.Profile = sketch20
pocket15.Type = "ThroughAll"
pocket15.Reversed = True

doc.recompute()
